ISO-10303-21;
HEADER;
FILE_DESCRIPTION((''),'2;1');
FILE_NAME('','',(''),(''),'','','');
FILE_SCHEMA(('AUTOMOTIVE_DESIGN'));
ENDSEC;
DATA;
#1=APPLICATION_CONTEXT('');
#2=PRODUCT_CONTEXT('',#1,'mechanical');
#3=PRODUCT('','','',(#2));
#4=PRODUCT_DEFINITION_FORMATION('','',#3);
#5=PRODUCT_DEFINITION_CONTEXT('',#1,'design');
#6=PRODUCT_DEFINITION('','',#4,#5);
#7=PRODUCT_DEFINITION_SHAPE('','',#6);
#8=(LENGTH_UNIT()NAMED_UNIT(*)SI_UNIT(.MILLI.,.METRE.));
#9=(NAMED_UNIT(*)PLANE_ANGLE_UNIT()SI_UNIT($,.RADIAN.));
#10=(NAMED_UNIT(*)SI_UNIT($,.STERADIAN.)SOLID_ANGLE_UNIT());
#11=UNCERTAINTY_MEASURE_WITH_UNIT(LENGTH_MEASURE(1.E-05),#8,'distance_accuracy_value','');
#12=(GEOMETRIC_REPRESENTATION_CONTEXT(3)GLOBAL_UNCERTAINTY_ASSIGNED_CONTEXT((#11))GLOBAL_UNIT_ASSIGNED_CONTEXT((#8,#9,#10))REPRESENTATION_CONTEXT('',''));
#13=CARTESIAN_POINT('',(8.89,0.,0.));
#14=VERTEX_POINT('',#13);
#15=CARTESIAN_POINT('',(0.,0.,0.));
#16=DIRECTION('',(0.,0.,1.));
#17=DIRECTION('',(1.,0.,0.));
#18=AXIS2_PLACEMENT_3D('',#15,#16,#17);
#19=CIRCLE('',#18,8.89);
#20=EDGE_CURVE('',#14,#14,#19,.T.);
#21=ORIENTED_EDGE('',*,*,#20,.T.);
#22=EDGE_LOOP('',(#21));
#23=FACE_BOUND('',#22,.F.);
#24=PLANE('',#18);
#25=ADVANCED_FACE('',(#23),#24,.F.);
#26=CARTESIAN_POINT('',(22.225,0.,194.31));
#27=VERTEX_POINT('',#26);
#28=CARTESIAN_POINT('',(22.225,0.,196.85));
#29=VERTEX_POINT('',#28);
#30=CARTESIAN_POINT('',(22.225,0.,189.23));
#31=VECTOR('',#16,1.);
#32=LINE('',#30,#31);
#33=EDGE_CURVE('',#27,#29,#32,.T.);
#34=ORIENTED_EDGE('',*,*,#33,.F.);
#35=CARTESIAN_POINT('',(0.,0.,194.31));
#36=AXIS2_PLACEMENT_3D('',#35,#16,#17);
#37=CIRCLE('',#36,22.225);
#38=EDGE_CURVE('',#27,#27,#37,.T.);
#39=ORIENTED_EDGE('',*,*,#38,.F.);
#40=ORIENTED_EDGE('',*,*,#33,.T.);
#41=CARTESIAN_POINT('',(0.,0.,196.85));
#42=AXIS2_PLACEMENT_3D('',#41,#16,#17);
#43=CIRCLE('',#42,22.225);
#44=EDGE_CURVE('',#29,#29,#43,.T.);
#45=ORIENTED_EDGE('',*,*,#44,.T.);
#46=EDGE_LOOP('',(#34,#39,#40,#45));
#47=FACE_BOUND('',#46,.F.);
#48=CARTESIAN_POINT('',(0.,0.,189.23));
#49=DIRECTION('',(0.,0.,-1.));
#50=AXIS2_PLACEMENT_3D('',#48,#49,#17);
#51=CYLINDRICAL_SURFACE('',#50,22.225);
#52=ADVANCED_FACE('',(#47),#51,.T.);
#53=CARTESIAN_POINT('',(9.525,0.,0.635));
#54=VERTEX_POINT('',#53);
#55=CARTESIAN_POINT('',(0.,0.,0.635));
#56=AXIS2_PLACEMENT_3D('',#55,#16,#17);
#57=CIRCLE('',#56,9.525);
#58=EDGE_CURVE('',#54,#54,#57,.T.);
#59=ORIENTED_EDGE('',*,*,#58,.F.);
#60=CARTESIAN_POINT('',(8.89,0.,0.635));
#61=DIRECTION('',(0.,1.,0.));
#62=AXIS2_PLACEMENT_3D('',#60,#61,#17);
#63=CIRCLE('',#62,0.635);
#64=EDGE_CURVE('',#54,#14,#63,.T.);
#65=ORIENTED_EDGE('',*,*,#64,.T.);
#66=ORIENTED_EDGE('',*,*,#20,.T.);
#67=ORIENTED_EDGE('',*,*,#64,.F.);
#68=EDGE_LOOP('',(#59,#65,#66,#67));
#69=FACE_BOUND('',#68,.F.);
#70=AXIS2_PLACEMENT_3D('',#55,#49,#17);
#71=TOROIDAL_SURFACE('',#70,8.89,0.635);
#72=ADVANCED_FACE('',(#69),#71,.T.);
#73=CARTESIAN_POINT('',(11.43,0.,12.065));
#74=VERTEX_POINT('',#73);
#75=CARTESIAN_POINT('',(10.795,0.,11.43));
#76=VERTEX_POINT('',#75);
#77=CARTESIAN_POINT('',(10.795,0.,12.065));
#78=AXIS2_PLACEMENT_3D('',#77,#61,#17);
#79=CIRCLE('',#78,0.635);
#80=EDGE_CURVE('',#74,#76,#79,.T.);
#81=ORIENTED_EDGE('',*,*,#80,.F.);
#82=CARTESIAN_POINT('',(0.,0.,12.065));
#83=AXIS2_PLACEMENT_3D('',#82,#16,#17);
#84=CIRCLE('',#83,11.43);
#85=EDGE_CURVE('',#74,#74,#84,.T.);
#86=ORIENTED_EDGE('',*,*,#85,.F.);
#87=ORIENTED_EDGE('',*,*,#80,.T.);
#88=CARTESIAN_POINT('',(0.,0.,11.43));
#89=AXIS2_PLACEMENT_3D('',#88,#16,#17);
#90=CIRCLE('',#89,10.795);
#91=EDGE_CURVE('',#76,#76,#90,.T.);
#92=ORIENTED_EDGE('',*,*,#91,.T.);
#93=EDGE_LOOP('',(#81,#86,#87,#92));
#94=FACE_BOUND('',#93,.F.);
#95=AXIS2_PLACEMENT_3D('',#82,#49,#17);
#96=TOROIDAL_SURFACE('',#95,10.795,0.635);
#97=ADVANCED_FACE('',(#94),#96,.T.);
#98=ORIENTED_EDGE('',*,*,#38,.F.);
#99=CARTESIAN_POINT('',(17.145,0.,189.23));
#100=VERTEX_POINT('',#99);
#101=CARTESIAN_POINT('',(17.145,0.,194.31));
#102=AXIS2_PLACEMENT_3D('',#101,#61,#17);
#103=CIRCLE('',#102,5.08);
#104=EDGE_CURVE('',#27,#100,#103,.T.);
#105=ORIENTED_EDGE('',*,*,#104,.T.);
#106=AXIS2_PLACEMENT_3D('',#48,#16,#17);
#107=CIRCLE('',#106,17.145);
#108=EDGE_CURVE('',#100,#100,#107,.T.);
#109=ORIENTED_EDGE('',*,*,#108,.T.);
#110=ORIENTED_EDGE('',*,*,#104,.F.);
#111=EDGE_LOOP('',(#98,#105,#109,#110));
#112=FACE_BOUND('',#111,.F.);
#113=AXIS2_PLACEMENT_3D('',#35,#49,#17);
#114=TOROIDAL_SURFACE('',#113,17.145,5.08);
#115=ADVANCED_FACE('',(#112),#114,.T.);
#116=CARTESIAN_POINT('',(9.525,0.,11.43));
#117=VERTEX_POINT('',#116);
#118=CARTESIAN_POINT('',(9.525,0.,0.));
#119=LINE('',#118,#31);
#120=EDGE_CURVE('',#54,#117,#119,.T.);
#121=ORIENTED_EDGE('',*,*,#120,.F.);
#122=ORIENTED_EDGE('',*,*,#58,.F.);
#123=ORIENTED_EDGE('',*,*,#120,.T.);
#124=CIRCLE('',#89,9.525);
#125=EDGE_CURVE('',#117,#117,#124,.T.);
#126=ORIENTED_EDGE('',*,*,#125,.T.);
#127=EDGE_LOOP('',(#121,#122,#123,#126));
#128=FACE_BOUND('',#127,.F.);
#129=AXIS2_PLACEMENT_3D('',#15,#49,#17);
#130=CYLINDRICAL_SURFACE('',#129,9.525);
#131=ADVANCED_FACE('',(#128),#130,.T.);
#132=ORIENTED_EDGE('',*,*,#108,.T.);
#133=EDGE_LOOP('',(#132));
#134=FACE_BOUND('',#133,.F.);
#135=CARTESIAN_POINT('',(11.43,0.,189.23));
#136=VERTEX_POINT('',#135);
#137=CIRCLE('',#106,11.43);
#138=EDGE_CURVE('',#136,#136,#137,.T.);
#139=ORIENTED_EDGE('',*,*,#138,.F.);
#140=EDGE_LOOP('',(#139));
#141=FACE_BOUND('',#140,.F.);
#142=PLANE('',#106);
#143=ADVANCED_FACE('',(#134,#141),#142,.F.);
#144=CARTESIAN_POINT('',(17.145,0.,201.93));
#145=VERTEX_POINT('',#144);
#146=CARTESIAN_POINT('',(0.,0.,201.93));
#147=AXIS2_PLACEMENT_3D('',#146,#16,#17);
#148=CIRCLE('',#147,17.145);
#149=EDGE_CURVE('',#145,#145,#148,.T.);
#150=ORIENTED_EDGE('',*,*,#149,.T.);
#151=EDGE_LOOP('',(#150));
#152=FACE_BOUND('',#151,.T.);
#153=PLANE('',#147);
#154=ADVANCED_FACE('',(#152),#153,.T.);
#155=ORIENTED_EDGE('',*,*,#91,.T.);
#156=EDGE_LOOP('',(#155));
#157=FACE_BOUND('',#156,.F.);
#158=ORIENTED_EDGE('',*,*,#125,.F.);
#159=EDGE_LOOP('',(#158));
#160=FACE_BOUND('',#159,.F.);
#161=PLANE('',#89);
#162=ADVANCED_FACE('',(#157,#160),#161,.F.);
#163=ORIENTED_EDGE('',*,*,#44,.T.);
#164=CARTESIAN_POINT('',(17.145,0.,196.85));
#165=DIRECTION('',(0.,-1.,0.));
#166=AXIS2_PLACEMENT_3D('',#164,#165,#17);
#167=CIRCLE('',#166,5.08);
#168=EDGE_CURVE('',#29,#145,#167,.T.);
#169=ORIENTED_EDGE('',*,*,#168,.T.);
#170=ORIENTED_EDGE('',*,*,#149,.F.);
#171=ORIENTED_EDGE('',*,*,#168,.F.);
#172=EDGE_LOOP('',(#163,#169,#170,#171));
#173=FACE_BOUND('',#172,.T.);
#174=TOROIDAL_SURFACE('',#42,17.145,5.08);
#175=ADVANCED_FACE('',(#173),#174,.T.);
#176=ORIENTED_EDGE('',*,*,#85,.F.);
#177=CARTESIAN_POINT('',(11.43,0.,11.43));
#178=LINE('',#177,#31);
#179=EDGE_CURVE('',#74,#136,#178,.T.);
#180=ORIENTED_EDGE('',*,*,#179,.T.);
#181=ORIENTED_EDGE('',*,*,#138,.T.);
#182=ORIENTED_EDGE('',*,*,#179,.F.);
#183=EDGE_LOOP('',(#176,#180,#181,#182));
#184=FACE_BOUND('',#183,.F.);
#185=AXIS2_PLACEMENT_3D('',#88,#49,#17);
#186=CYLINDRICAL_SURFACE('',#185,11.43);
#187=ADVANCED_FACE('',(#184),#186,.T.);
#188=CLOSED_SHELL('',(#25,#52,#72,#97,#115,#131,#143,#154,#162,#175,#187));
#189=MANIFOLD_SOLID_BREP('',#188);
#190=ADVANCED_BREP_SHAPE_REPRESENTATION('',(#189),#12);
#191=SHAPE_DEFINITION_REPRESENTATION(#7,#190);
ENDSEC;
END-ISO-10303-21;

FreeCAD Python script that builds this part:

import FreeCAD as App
import Part
import Sketcher

V = App.Vector
Q = App.Units.Quantity


def edges_at(feature, points):
    """Names of the edges that pass closest to the given points."""
    edges = feature.Shape.Edges
    near = lambda p: min(range(len(edges)), key=lambda i: edges[i].distToShape(Part.Vertex(*p))[0])
    return sorted({f"Edge{near(p) + 1}" for p in points})

doc = App.newDocument("Part")
body = doc.addObject("PartDesign::Body", "Body")

sketch1 = body.newObject("Sketcher::SketchObject", "Sketch")
sketch1.AttachmentSupport = (doc.getObject("XY_Plane"), [""])
sketch1.MapMode = "FlatFace"
sketch1.addGeometry(Part.Circle(V(0, 0, 0), V(0, 0, 1), 10), False)
sketch1.addConstraint([
    Sketcher.Constraint("Coincident", 0, 3, -1, 1),
    Sketcher.Constraint("Diameter", 0, Q("0.75 in")),
])
pad1 = body.newObject("PartDesign::Pad", "Pad")
pad1.Profile = sketch1
pad1.Length = Q("0.45 in")

sketch2 = body.newObject("Sketcher::SketchObject", "Sketch001")
sketch2.AttachmentSupport = (doc.getObject("XY_Plane"), [""])
sketch2.MapMode = "FlatFace"
sketch2.AttachmentOffset = App.Placement(V(0, 0, 0.45 * 25.4), App.Rotation())
sketch2.addGeometry(Part.Circle(V(0, 0, 0), V(0, 0, 1), 11), False)
sketch2.addConstraint([
    Sketcher.Constraint("Coincident", 0, 3, -1, 1),
    Sketcher.Constraint("Diameter", 0, Q("0.9 in")),
])
pad2 = body.newObject("PartDesign::Pad", "Pad001")
pad2.Profile = sketch2
pad2.Length = Q("7 in")

sketch3 = body.newObject("Sketcher::SketchObject", "Sketch002")
sketch3.AttachmentSupport = (doc.getObject("XY_Plane"), [""])
sketch3.MapMode = "FlatFace"
sketch3.AttachmentOffset = App.Placement(V(0, 0, 7.45 * 25.4), App.Rotation())
sketch3.addGeometry(Part.Circle(V(0, 0, 0), V(0, 0, 1), 22), False)
sketch3.addConstraint([
    Sketcher.Constraint("Coincident", 0, 3, -1, 1),
    Sketcher.Constraint("Diameter", 0, Q("1.75 in")),
])
pad3 = body.newObject("PartDesign::Pad", "Pad002")
pad3.Profile = sketch3
pad3.Length = Q("0.5 in")
doc.recompute()

fillet = body.newObject("PartDesign::Fillet", "Fillet")
fillet.Base = (pad3, edges_at(pad3, [(-22.225, 0, 201.93), (-22.225, 0, 189.23)]))
fillet.Radius = Q("0.2 in")
doc.recompute()

fillet2 = body.newObject("PartDesign::Fillet", "Fillet001")
fillet2.Base = (fillet, edges_at(fillet, [(-11.43, 0, 11.43), (-9.525, 0, 0)]))
fillet2.Radius = Q("0.025 in")

doc.recompute()
